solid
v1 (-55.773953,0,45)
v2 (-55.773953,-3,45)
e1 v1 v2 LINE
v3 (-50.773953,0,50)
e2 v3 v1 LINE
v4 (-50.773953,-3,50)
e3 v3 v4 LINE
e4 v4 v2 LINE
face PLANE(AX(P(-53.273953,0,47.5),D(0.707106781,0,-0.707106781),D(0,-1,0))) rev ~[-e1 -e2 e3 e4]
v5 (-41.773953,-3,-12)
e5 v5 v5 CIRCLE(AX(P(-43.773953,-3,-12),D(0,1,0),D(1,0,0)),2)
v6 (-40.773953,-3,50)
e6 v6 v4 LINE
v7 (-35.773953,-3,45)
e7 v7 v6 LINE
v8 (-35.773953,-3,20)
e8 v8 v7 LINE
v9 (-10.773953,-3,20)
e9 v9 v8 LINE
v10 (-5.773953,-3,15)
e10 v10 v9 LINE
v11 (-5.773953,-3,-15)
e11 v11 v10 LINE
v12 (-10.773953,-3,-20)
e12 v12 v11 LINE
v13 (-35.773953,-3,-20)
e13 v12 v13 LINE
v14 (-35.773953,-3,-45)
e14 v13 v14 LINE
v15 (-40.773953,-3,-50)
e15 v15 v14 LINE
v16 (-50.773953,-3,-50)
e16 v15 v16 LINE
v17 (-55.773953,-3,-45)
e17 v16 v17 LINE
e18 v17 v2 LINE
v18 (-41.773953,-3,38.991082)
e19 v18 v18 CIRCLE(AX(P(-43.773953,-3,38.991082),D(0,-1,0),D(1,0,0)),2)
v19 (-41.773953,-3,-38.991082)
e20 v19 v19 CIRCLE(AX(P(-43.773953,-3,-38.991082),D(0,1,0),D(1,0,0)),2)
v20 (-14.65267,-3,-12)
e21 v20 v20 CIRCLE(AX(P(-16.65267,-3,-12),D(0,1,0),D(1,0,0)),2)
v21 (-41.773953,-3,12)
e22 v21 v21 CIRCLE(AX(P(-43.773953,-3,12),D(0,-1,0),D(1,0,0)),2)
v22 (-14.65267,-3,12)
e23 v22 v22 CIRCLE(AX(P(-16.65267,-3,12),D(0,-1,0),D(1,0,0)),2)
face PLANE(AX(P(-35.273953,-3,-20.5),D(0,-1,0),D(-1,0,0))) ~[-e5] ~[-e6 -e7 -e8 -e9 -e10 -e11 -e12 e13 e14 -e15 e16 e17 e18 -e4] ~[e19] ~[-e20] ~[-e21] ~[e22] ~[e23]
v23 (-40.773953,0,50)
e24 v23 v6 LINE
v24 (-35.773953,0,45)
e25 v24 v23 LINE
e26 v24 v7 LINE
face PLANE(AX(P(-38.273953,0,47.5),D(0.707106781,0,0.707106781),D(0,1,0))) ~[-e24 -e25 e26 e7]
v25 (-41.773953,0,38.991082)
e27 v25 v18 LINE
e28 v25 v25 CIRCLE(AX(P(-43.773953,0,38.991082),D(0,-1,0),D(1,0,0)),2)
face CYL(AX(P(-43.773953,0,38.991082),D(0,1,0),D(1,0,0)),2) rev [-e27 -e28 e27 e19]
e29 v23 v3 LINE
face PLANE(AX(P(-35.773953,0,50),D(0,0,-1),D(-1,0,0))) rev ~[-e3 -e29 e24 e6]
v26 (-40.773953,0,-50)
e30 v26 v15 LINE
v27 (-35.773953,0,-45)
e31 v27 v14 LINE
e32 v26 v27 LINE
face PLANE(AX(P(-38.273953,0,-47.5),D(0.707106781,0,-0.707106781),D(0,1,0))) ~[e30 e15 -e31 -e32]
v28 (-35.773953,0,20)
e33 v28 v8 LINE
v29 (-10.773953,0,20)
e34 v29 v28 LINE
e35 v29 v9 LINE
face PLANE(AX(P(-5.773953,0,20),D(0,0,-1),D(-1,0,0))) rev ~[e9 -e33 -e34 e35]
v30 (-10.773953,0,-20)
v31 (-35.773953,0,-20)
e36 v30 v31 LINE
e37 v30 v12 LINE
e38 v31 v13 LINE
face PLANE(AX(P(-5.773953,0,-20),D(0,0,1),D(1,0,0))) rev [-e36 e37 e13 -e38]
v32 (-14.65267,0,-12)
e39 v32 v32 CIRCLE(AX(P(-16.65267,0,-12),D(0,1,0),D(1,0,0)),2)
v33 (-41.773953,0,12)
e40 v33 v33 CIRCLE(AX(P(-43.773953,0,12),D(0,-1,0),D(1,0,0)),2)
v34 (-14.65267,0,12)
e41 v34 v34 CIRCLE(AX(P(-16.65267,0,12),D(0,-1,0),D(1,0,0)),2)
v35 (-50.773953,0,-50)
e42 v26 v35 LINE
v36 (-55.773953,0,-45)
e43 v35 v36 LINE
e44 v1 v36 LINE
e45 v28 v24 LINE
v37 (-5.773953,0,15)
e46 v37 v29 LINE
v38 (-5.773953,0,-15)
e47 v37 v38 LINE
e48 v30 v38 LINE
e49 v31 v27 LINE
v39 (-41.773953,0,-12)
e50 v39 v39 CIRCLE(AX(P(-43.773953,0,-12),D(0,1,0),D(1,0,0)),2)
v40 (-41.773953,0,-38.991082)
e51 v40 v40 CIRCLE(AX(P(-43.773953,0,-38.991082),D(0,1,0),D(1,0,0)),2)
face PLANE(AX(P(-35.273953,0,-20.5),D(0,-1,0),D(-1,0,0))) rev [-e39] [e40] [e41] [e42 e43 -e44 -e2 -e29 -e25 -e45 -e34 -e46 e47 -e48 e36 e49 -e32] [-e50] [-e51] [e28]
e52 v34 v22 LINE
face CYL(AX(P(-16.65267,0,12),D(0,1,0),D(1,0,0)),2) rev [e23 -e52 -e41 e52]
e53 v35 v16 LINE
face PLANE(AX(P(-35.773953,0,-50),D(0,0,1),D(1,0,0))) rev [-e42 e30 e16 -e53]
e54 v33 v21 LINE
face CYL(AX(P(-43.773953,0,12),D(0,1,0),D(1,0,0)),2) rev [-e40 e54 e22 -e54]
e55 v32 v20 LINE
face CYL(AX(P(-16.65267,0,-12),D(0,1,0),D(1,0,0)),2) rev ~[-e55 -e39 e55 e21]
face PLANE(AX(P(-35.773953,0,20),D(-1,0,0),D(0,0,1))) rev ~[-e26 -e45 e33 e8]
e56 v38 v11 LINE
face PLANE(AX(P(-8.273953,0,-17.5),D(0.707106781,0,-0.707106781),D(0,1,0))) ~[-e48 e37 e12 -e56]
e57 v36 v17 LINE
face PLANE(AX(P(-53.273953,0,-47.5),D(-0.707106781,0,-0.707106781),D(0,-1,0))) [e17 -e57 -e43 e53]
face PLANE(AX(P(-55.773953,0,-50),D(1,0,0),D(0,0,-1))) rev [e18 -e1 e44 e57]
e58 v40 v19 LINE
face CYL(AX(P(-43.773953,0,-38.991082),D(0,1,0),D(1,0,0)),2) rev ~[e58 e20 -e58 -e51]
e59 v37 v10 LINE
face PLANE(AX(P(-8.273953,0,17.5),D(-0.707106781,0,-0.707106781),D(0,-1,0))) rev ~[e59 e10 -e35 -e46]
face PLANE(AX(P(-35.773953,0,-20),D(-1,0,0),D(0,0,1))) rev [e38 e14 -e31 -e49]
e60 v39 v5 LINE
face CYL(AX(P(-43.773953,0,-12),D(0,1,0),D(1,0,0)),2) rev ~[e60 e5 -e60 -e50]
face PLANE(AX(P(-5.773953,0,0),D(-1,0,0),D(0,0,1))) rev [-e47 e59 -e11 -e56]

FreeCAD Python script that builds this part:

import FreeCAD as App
import Part
import Sketcher
Q = App.Units.Quantity


def edges_at(feature, points):
    """Names of the edges that pass closest to the given points."""
    edges = feature.Shape.Edges
    near = lambda p: min(range(len(edges)), key=lambda i: edges[i].distToShape(Part.Vertex(*p))[0])
    return sorted({f"Edge{near(p) + 1}" for p in points})


def add_polygon(sketch, points):
    """Adds a closed chain of lines whose ends are joined by coincident constraints."""
    first, n = sketch.GeometryCount, len(points)
    for a, b in zip(points, points[1:] + points[:1]):
        sketch.addGeometry(Part.LineSegment(App.Vector(*a, 0), App.Vector(*b, 0)), False)
    for i in range(n):
        sketch.addConstraint(Sketcher.Constraint("Coincident", first + i, 2, first + (i + 1) % n, 1))

doc = App.newDocument("Part")
body = doc.addObject("PartDesign::Body", "Body")

sketch1 = body.newObject("Sketcher::SketchObject", "Sketch")
sketch1.AttachmentSupport = (doc.getObject("XZ_Plane"), [""])
sketch1.MapMode = "FlatFace"
add_polygon(sketch1, [(-35.8, 50), (-55.8, 50), (-55.8, 0), (-5.8, 0), (-5.8, 20), (-35.8, 20)])
sketch1.addGeometry(Part.Circle(App.Vector(-43.8, 12, 0), App.Vector(0, 0, 1), 2), False)
sketch1.addGeometry(Part.Circle(App.Vector(-16.7, 12, 0), App.Vector(0, 0, 1), 2), False)
sketch1.addGeometry(Part.Circle(App.Vector(-43.8, 39, 0), App.Vector(0, 0, 1), 2), False)
sketch1.addConstraint([
    Sketcher.Constraint("Horizontal", 0),
    Sketcher.Constraint("Vertical", 1),
    Sketcher.Constraint("Horizontal", 2),
    Sketcher.Constraint("Vertical", 3),
    Sketcher.Constraint("Horizontal", 4),
    Sketcher.Constraint("Vertical", 5),
    Sketcher.Constraint("Equal", 6, 7),
    Sketcher.Constraint("Equal", 7, 8),
    Sketcher.Constraint("PointOnObject", 1, 2, -1),
    Sketcher.Constraint("Horizontal", 6, 3, 7, 3),
    Sketcher.Constraint("Vertical", 6, 3, 8, 3),
    Sketcher.Constraint("Equal", 2, 1),
    Sketcher.Constraint("Equal", 0, 3),
    Sketcher.Constraint("Diameter", 6, Q("4 mm")),
    Sketcher.Constraint("DistanceX", 0, 2, 0, 1, Q("20 mm")),
    Sketcher.Constraint("DistanceX", 2, 1, 2, 2, Q("50 mm")),
    Sketcher.Constraint("DistanceY", -1, 1, 6, 3, Q("12 mm")),
    Sketcher.Constraint("DistanceX", 0, 2, 8, 3, Q("12 mm")),
    Sketcher.Constraint("DistanceX", 7, 3, -1, 1, Q("16.65267 mm")),
    Sketcher.Constraint("DistanceX", 6, 3, -1, 1, Q("43.773953 mm")),
    Sketcher.Constraint("DistanceY", -1, 1, 8, 3, Q("38.991082 mm")),
])
pad1 = body.newObject("PartDesign::Pad", "Pad")
pad1.Profile = sketch1
pad1.Length = 3
body2 = doc.addObject("PartDesign::Body", "Body001")
doc.recompute()

body2.BaseFeature = body
doc.recompute()

mirroring = doc.addObject("Part::Mirroring", "Mirroring")
mirroring.Source = body
mirroring.Base = App.Vector(-30.773953, -1.5, 0)
mirroring.Normal = App.Vector(0, 0, -1)
body3 = doc.addObject("PartDesign::Body", "Body002")
body3.BaseFeature = mirroring
boolean = body2.newObject("PartDesign::Boolean", "Boolean")
boolean.Type = "Fuse"
boolean.addObjects([body3])
doc.recompute()

chamfer = body2.newObject("PartDesign::Chamfer", "Chamfer")
chamfer.Base = (boolean, edges_at(boolean, [
    (-5.774, -1.5, 20),
    (-5.774, -1.5, -20),
    (-35.774, -1.5, 50),
    (-35.774, -1.5, -50),
    (-55.774, -1.5, 50),
    (-55.774, -1.5, -50),
]))
chamfer.Size = 5
mirroring.Visibility = False

doc.recompute()
